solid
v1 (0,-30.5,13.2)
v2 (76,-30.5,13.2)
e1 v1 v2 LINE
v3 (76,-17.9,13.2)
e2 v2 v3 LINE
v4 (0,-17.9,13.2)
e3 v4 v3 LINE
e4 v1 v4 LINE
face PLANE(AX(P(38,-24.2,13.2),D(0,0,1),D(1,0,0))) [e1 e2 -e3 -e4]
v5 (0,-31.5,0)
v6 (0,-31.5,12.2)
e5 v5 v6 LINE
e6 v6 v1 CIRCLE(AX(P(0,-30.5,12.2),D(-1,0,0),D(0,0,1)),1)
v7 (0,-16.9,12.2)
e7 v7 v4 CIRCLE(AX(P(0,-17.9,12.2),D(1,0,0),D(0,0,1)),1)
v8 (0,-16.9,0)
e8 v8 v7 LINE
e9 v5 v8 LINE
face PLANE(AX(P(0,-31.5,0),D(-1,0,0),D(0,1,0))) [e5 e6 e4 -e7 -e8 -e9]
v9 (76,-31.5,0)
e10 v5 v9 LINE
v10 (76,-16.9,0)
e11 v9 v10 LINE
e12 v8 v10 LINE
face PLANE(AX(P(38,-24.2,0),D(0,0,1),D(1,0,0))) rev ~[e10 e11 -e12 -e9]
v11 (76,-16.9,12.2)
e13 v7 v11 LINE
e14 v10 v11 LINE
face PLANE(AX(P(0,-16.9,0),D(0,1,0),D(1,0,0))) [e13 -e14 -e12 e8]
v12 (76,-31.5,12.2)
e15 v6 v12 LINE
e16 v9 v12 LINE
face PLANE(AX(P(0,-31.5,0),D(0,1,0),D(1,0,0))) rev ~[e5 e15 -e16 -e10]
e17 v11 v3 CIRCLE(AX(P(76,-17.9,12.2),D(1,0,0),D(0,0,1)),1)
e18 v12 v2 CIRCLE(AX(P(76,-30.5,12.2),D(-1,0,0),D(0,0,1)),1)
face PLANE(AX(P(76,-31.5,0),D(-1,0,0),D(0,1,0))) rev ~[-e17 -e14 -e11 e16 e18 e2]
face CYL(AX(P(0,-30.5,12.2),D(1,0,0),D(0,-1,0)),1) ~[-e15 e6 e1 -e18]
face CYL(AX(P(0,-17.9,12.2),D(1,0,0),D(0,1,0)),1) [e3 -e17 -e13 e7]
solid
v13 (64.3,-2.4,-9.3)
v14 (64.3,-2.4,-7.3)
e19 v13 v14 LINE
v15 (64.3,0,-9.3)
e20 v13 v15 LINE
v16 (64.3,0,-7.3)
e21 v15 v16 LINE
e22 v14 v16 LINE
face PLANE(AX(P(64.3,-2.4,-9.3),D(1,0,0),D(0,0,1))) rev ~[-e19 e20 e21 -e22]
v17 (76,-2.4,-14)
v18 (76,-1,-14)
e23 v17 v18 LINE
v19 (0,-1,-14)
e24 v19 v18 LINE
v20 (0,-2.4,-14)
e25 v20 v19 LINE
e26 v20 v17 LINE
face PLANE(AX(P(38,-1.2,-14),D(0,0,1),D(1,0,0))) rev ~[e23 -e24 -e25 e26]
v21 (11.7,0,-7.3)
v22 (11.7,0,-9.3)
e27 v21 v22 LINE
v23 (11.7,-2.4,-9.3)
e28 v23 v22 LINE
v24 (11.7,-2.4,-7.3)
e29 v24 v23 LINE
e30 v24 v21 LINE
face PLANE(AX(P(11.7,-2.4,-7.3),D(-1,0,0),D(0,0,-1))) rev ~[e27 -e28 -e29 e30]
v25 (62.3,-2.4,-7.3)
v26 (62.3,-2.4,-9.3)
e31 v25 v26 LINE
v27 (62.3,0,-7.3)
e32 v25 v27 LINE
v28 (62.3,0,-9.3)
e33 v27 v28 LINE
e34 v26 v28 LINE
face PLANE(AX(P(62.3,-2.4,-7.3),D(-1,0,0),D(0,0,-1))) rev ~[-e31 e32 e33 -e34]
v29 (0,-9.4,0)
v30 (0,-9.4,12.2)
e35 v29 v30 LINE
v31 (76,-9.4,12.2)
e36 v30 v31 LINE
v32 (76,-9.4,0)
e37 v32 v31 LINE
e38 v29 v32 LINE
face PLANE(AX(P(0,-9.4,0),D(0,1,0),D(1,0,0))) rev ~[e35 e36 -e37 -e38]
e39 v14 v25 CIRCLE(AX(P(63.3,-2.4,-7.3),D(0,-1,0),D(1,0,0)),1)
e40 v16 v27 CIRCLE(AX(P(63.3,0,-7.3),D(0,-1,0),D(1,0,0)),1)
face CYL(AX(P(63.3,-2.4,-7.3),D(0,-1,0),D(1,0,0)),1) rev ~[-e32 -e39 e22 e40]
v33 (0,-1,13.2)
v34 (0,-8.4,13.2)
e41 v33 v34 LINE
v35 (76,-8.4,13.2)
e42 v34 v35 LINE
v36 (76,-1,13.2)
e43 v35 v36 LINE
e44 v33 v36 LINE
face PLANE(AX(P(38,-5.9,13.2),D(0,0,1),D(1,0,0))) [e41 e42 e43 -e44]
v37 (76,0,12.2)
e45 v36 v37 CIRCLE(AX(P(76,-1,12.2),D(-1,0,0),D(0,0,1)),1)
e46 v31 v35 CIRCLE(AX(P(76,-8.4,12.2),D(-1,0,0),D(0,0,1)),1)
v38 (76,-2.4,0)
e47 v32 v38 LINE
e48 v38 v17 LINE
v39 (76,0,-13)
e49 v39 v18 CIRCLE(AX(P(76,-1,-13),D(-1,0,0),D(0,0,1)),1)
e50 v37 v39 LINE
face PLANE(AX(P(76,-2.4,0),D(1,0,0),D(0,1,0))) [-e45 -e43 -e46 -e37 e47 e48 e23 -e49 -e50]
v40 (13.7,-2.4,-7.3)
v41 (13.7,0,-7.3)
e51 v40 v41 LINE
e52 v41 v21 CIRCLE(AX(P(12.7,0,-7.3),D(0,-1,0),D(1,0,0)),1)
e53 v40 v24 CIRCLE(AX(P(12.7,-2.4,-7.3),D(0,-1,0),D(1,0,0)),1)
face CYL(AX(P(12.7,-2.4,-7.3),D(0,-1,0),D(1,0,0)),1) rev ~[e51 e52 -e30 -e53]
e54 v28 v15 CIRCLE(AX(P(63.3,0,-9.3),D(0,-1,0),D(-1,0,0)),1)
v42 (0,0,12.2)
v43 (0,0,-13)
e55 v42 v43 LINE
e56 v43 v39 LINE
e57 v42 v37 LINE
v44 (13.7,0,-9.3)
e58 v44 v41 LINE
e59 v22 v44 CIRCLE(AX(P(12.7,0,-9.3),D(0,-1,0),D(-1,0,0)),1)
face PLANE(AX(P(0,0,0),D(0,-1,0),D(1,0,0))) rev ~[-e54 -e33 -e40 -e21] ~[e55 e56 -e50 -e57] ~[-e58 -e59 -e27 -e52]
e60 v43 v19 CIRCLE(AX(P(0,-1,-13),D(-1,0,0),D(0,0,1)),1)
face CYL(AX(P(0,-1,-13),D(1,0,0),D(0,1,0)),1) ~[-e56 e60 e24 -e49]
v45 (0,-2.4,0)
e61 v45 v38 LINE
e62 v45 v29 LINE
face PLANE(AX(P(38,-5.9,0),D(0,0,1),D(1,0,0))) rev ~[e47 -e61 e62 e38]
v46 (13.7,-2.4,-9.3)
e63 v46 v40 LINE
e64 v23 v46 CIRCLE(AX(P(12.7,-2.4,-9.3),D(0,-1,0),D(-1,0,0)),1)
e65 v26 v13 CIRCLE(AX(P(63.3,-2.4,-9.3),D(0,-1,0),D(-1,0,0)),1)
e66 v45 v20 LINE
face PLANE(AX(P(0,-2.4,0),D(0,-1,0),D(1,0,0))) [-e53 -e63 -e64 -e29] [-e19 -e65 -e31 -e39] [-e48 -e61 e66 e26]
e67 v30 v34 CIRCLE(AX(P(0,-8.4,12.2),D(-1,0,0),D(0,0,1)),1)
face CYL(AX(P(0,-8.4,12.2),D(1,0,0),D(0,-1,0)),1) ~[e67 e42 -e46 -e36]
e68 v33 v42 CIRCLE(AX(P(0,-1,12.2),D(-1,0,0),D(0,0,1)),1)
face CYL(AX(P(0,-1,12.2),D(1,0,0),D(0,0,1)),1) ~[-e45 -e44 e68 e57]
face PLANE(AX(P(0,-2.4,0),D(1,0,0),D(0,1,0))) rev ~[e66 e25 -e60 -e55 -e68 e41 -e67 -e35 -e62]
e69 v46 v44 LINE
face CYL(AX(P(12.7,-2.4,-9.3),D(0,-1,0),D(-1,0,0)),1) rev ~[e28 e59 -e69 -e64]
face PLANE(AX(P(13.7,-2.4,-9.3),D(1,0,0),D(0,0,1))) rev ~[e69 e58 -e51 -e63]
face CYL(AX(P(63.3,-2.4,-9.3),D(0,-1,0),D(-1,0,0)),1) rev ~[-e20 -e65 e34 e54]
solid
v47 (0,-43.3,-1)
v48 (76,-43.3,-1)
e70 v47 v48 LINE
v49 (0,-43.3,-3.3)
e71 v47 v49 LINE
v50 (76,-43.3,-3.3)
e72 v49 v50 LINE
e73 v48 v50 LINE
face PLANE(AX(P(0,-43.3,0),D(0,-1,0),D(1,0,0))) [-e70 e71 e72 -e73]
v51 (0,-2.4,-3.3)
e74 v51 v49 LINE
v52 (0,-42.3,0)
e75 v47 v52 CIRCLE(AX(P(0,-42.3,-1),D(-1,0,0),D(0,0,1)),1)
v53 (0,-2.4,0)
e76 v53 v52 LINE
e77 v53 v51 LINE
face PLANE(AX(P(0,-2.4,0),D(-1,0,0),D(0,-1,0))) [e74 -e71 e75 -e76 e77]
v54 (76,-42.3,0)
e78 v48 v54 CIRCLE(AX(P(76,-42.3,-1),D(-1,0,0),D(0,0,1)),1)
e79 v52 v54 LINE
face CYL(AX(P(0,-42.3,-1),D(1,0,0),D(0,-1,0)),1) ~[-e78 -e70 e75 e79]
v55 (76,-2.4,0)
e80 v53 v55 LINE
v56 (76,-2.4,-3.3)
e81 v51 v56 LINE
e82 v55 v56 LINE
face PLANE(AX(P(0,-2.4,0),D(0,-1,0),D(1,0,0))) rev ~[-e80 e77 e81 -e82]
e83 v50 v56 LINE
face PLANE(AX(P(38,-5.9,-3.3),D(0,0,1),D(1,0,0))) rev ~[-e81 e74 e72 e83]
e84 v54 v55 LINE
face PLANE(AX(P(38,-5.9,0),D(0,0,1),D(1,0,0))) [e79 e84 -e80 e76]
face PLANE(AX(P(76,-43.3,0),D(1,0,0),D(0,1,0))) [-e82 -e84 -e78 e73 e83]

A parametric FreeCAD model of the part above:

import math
import FreeCAD as App
import Part
import Sketcher
Q = App.Units.Quantity


def edges_at(feature, points):
    """Names of the edges that pass closest to the given points."""
    edges = feature.Shape.Edges
    near = lambda p: min(range(len(edges)), key=lambda i: edges[i].distToShape(Part.Vertex(*p))[0])
    return sorted({f"Edge{near(p) + 1}" for p in points})


def add_polygon(sketch, points):
    """Adds a closed chain of lines whose ends are joined by coincident constraints."""
    first, n = sketch.GeometryCount, len(points)
    for a, b in zip(points, points[1:] + points[:1]):
        sketch.addGeometry(Part.LineSegment(App.Vector(*a, 0), App.Vector(*b, 0)), False)
    for i in range(n):
        sketch.addConstraint(Sketcher.Constraint("Coincident", first + i, 2, first + (i + 1) % n, 1))

doc = App.newDocument("Part")
body = doc.addObject("PartDesign::Body", "Body")

sketch1 = body.newObject("Sketcher::SketchObject", "Sketch")
sketch1.AttachmentSupport = (doc.getObject("XY_Plane"), [""])
sketch1.MapMode = "FlatFace"
add_polygon(sketch1, [(0, -9), (76, -9), (76, 0), (0, 0)])
sketch1.addConstraint(Sketcher.Constraint("Horizontal", 0))
sketch1.addConstraint(Sketcher.Constraint("Vertical", 1))
sketch1.addConstraint(Sketcher.Constraint("Horizontal", 2))
sketch1.addConstraint(Sketcher.Constraint("Vertical", 3))
sketch1.addConstraint(Sketcher.Constraint("Coincident", 2, 2, -1, 1))
sketch1.addConstraint(Sketcher.Constraint("DistanceX", 0, 1, 0, 2, Q("76 mm")))
sketch1.addConstraint(Sketcher.Constraint("DistanceY", 1, 1, 1, 2, Q("9.4 mm")))
pad1 = body.newObject("PartDesign::Pad", "Pad")
pad1.Profile = sketch1
pad1.Length = 13.2

sketch2 = body.newObject("Sketcher::SketchObject", "Sketch001")
sketch2.AttachmentSupport = (doc.getObject("XY_Plane"), [""])
sketch2.MapMode = "FlatFace"
add_polygon(sketch2, [(0, 0), (0, -2.4), (76, -2.4), (76, 0)])
sketch2.addConstraint(Sketcher.Constraint("Vertical", 0))
sketch2.addConstraint(Sketcher.Constraint("Horizontal", 1))
sketch2.addConstraint(Sketcher.Constraint("Vertical", 2))
sketch2.addConstraint(Sketcher.Constraint("Horizontal", 3))
sketch2.addConstraint(Sketcher.Constraint("Coincident", 3, 2, -1, 1))
sketch2.addConstraint(Sketcher.Constraint("DistanceX", 1, 1, 1, 2, Q("76 mm")))
sketch2.addConstraint(Sketcher.Constraint("DistanceY", 0, 2, 0, 1, Q("2.4 mm")))
pad2 = body.newObject("PartDesign::Pad", "Pad001")
pad2.Profile = sketch2
pad2.Length = 14
pad2.Reversed = True
doc.recompute()

fillet = body.newObject("PartDesign::Fillet", "Fillet")
fillet.Base = (pad2, edges_at(pad2, [(38, 0, 13.2), (38, -9.4, 13.2)]))
fillet.Radius = 1
doc.recompute()

fillet2 = body.newObject("PartDesign::Fillet", "Fillet001")
fillet2.Base = (fillet, edges_at(fillet, [(38, 0, -14)]))
fillet2.Radius = 1

sketch3 = body.newObject("Sketcher::SketchObject", "Sketch002")
sketch3.AttachmentSupport = (doc.getObject("XZ_Plane"), [""])
sketch3.MapMode = "FlatFace"
sketch3.AttachmentOffset = App.Placement(App.Vector(0, 0, 2.4), App.Rotation())
sketch3.addGeometry(Part.ArcOfCircle(Part.Circle(App.Vector(12.7, -9.3, 0), App.Vector(0, 0, 1), 1), math.radians(180), math.radians(360)), False)
sketch3.addGeometry(Part.LineSegment(App.Vector(13.7, -9.3, 0), App.Vector(13.7, -7.3, 0)), False)
sketch3.addGeometry(Part.ArcOfCircle(Part.Circle(App.Vector(12.7, -7.3, 0), App.Vector(0, 0, 1), 1), math.radians(0), math.radians(180)), False)
sketch3.addGeometry(Part.LineSegment(App.Vector(11.7, -7.3, 0), App.Vector(11.7, -9.3, 0)), False)
sketch3.addGeometry(Part.ArcOfCircle(Part.Circle(App.Vector(63.3, -9.3, 0), App.Vector(0, 0, 1), 1), math.radians(180), math.radians(360)), False)
sketch3.addGeometry(Part.LineSegment(App.Vector(64.3, -9.3, 0), App.Vector(64.3, -7.3, 0)), False)
sketch3.addGeometry(Part.ArcOfCircle(Part.Circle(App.Vector(63.3, -7.3, 0), App.Vector(0, 0, 1), 1), math.radians(0), math.radians(180)), False)
sketch3.addGeometry(Part.LineSegment(App.Vector(62.3, -7.3, 0), App.Vector(62.3, -9.3, 0)), False)
sketch3.addConstraint(Sketcher.Constraint("Tangent", 0, 2, 1, 1))
sketch3.addConstraint(Sketcher.Constraint("Tangent", 1, 2, 2, 1))
sketch3.addConstraint(Sketcher.Constraint("Tangent", 2, 2, 3, 1))
sketch3.addConstraint(Sketcher.Constraint("Tangent", 3, 2, 0, 1))
sketch3.addConstraint(Sketcher.Constraint("Tangent", 4, 2, 5, 1))
sketch3.addConstraint(Sketcher.Constraint("Tangent", 5, 2, 6, 1))
sketch3.addConstraint(Sketcher.Constraint("Tangent", 6, 2, 7, 1))
sketch3.addConstraint(Sketcher.Constraint("Tangent", 7, 2, 4, 1))
sketch3.addConstraint(Sketcher.Constraint("Vertical", 1))
sketch3.addConstraint(Sketcher.Constraint("Vertical", 3))
sketch3.addConstraint(Sketcher.Constraint("Vertical", 5))
sketch3.addConstraint(Sketcher.Constraint("Vertical", 7))
sketch3.addConstraint(Sketcher.Constraint("Equal", 2, 4))
sketch3.addConstraint(Sketcher.Constraint("Horizontal", 0, 3, 4, 3))
sketch3.addConstraint(Sketcher.Constraint("Horizontal", 2, 3, 6, 3))
sketch3.addConstraint(Sketcher.Constraint("Radius", 0, Q("1 mm")))
sketch3.addConstraint(Sketcher.Constraint("DistanceY", 1, 1, 1, 2, Q("2 mm")))
sketch3.addConstraint(Sketcher.Constraint("DistanceX", -1, 1, 0, 3, Q("12.7 mm")))
sketch3.addConstraint(Sketcher.Constraint("DistanceY", 0, 3, -1, 1, Q("9.3 mm")))
sketch3.addConstraint(Sketcher.Constraint("DistanceX", -1, 1, 4, 3, Q("63.3 mm")))
pocket1 = body.newObject("PartDesign::Pocket", "Pocket")
pocket1.Profile = sketch3
pocket1.Type = "ThroughAll"
body2 = doc.addObject("PartDesign::Body", "Body001")

sketch4 = body2.newObject("Sketcher::SketchObject", "Sketch003")
sketch4.AttachmentSupport = (doc.getObject("XY_Plane001"), [""])
sketch4.MapMode = "FlatFace"
add_polygon(sketch4, [(0, -17), (0, -32), (76, -32), (76, -17)])
sketch4.addConstraint(Sketcher.Constraint("Vertical", 0))
sketch4.addConstraint(Sketcher.Constraint("Horizontal", 1))
sketch4.addConstraint(Sketcher.Constraint("Vertical", 2))
sketch4.addConstraint(Sketcher.Constraint("Horizontal", 3))
sketch4.addConstraint(Sketcher.Constraint("PointOnObject", 0, 2, -2))
sketch4.addConstraint(Sketcher.Constraint("DistanceX", 1, 1, 1, 2, Q("76 mm")))
sketch4.addConstraint(Sketcher.Constraint("DistanceY", 0, 2, 0, 1, Q("14.6 mm")))
sketch4.addConstraint(Sketcher.Constraint("DistanceY", 0, 2, -1, 1, Q("31.5 mm")))
pad3 = body2.newObject("PartDesign::Pad", "Pad002")
pad3.Profile = sketch4
pad3.Length = 13.2
doc.recompute()

fillet3 = body2.newObject("PartDesign::Fillet", "Fillet002")
fillet3.Base = (pad3, edges_at(pad3, [(38, -16.9, 13.2), (38, -31.5, 13.2)]))
fillet3.Radius = 1
body3 = doc.addObject("PartDesign::Body", "Body002")

sketch5 = body3.newObject("Sketcher::SketchObject", "Sketch004")
sketch5.AttachmentSupport = (doc.getObject("XY_Plane002"), [""])
sketch5.MapMode = "FlatFace"
add_polygon(sketch5, [(0, -2), (0, -43), (76, -43), (76, -2)])
sketch5.addConstraint(Sketcher.Constraint("Vertical", 0))
sketch5.addConstraint(Sketcher.Constraint("Horizontal", 1))
sketch5.addConstraint(Sketcher.Constraint("Vertical", 2))
sketch5.addConstraint(Sketcher.Constraint("Horizontal", 3))
sketch5.addConstraint(Sketcher.Constraint("PointOnObject", 0, 2, -2))
sketch5.addConstraint(Sketcher.Constraint("DistanceX", 1, 1, 1, 2, Q("76 mm")))
sketch5.addConstraint(Sketcher.Constraint("DistanceY", 0, 2, 0, 1, Q("40.9 mm")))
sketch5.addConstraint(Sketcher.Constraint("DistanceY", 0, 2, -1, 1, Q("43.3 mm")))
pad4 = body3.newObject("PartDesign::Pad", "Pad003")
pad4.Profile = sketch5
pad4.Length = 3.3
pad4.Reversed = True
doc.recompute()

fillet4 = body3.newObject("PartDesign::Fillet", "Fillet003")
fillet4.Base = (pad4, edges_at(pad4, [(38, -43.3, 0)]))
fillet4.Radius = 1

doc.recompute()
